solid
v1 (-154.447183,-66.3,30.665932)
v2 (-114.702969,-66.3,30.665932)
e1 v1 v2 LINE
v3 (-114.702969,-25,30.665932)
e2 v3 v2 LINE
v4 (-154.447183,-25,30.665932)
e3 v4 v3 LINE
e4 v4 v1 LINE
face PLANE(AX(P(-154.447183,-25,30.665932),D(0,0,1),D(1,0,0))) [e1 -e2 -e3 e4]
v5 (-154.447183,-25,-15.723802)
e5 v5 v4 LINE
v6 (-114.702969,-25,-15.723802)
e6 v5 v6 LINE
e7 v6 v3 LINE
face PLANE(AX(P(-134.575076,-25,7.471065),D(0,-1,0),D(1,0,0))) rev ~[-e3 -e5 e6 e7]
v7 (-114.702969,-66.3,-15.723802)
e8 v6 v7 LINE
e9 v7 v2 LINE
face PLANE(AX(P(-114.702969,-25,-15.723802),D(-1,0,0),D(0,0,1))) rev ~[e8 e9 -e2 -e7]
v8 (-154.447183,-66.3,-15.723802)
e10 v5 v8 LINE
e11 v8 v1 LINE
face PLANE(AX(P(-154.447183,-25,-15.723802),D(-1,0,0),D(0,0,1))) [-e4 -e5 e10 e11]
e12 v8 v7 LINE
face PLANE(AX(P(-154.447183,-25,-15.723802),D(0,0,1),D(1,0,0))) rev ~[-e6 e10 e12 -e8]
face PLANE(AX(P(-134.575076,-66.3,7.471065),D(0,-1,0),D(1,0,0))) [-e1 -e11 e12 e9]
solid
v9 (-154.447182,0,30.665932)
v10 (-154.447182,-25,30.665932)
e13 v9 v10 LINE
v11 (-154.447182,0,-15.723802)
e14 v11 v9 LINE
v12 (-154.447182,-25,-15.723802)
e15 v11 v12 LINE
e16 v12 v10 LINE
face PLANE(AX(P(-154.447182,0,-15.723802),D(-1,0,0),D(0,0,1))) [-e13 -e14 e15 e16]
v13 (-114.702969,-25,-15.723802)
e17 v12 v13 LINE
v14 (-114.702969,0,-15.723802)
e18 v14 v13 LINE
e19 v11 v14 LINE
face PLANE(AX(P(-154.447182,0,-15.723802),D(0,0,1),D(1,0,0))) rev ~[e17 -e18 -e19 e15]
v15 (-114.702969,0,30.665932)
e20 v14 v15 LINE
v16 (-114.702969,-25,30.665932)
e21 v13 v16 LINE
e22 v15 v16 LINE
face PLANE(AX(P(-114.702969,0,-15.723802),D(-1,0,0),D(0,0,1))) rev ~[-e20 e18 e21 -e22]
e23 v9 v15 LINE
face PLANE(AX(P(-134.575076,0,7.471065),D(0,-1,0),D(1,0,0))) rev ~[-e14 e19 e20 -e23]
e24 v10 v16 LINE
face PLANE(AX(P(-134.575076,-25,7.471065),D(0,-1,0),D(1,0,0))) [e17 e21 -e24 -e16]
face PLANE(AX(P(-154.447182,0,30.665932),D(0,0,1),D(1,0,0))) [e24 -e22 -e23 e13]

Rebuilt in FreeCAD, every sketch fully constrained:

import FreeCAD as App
import Part
import Sketcher
Q = App.Units.Quantity

doc = App.newDocument("Part")
body = doc.addObject("PartDesign::Body", "Body")

# Sketch on XZ plane
sketch1 = doc.addObject("Sketcher::SketchObject", "Sketch")
body.addObject(sketch1)
sketch1.AttachmentSupport = (doc.XZ_Plane, [""])
sketch1.MapMode = "FlatFace"
sketch1.addGeometry([
    Part.LineSegment(App.Vector(-154, 31, 0), App.Vector(-154, -16, 0)),
    Part.LineSegment(App.Vector(-154, -16, 0), App.Vector(-115, -16, 0)),
    Part.LineSegment(App.Vector(-115, -16, 0), App.Vector(-115, 31, 0)),
    Part.LineSegment(App.Vector(-115, 31, 0), App.Vector(-154, 31, 0)),
], False)
sketch1.addConstraint([
    Sketcher.Constraint("Coincident", 0, 2, 1, 1),
    Sketcher.Constraint("Coincident", 1, 2, 2, 1),
    Sketcher.Constraint("Coincident", 2, 2, 3, 1),
    Sketcher.Constraint("Coincident", 3, 2, 0, 1),
    Sketcher.Constraint("Vertical", 0),
    Sketcher.Constraint("Horizontal", 1),
    Sketcher.Constraint("Vertical", 2),
    Sketcher.Constraint("Horizontal", 3),
    Sketcher.Constraint("DistanceY", 0, 2, -1, 1, Q("15.723802 mm")),
    Sketcher.Constraint("DistanceX", 1, 1, 1, 2, Q("39.744213 mm")),
    Sketcher.Constraint("DistanceY", 0, 2, 0, 1, Q("46.389734 mm")),
    Sketcher.Constraint("DistanceX", 1, 2, -1, 1, Q("114.702969 mm")),
])
pad1 = doc.addObject("PartDesign::Pad", "Pad")
body.addObject(pad1)
pad1.Profile = sketch1
pad1.Length = 25
body2 = doc.addObject("PartDesign::Body", "Body001")

# Sketch on XZ plane
sketch2 = doc.addObject("Sketcher::SketchObject", "Sketch001")
body2.addObject(sketch2)
sketch2.AttachmentSupport = (doc.getObject("XZ_Plane001"), [""])
sketch2.MapMode = "FlatFace"
sketch2.AttachmentOffset = App.Placement(App.Vector(0, 0, 25), App.Rotation())
sketch2.addGeometry([
    Part.LineSegment(App.Vector(-154, 31, 0), App.Vector(-154, -16, 0)),
    Part.LineSegment(App.Vector(-154, -16, 0), App.Vector(-115, -16, 0)),
    Part.LineSegment(App.Vector(-115, -16, 0), App.Vector(-115, 31, 0)),
    Part.LineSegment(App.Vector(-115, 31, 0), App.Vector(-154, 31, 0)),
], False)
sketch2.addConstraint([
    Sketcher.Constraint("Coincident", 0, 2, 1, 1),
    Sketcher.Constraint("Coincident", 1, 2, 2, 1),
    Sketcher.Constraint("Coincident", 2, 2, 3, 1),
    Sketcher.Constraint("Coincident", 3, 2, 0, 1),
    Sketcher.Constraint("Vertical", 0),
    Sketcher.Constraint("Horizontal", 1),
    Sketcher.Constraint("Vertical", 2),
    Sketcher.Constraint("Horizontal", 3),
    Sketcher.Constraint("DistanceY", 0, 2, -1, 1, Q("15.723802 mm")),
    Sketcher.Constraint("DistanceX", 1, 1, 1, 2, Q("39.744214 mm")),
    Sketcher.Constraint("DistanceY", 0, 2, 0, 1, Q("46.389734 mm")),
    Sketcher.Constraint("DistanceX", 1, 2, -1, 1, Q("114.702969 mm")),
])
pad2 = doc.addObject("PartDesign::Pad", "Pad001")
body2.addObject(pad2)
pad2.Profile = sketch2
pad2.Length = 41.3

doc.recompute()
